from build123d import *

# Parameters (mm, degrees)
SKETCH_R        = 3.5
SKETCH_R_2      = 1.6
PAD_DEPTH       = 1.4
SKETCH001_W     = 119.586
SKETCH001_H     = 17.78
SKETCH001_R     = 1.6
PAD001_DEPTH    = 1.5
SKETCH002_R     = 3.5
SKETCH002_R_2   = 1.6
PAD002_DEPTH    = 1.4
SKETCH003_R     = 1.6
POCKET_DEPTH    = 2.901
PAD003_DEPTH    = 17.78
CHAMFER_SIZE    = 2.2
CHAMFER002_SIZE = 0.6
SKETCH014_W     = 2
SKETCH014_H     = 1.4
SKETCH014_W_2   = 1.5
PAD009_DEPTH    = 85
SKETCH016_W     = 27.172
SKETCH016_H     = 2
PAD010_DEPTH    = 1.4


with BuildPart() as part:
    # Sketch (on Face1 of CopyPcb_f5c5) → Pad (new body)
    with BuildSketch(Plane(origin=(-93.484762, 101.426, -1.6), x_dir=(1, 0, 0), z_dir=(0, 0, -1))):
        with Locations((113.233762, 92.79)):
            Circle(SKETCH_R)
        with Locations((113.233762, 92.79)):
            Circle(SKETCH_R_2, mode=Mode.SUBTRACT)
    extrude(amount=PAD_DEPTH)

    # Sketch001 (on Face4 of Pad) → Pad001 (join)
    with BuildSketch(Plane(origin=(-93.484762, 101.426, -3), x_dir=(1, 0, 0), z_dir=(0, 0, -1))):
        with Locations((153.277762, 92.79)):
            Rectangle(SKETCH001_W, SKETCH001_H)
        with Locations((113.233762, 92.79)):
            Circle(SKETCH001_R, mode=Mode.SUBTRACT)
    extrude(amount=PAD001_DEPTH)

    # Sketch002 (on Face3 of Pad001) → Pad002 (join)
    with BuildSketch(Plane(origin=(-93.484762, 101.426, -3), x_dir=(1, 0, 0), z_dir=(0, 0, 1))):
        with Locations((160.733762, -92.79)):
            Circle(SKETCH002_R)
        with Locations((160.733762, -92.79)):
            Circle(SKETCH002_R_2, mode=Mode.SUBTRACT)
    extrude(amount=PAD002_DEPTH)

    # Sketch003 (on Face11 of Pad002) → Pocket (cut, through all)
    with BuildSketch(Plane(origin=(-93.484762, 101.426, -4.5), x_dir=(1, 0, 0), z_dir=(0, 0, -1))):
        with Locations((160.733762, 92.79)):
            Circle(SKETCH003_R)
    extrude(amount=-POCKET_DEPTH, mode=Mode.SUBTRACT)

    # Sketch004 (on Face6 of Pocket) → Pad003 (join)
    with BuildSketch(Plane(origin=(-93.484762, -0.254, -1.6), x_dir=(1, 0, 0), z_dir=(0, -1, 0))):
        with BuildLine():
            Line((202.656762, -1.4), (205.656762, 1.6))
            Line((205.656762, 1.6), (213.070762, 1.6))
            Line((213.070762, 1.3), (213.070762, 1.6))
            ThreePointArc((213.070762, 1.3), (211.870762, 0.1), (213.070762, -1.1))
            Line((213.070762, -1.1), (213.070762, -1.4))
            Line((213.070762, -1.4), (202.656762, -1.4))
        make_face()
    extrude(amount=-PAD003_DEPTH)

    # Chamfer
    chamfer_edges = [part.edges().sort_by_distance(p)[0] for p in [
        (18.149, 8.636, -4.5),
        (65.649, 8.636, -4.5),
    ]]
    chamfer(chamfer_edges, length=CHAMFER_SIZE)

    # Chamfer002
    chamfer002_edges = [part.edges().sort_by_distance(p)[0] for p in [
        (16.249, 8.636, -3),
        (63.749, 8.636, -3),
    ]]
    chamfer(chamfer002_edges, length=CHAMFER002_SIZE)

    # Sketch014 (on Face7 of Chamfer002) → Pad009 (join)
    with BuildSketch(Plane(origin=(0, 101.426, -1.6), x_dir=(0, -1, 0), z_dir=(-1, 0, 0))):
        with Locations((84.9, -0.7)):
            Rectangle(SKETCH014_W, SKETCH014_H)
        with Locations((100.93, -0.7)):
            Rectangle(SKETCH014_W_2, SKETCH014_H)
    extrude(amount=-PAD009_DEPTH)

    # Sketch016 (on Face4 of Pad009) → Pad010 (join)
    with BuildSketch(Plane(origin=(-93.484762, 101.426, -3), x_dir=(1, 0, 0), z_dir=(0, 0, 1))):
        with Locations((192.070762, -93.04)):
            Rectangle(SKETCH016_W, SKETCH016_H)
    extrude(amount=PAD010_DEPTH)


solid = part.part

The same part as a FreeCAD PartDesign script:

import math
import FreeCAD as App
import Part
import Sketcher
from FreeCAD import Vector
Q = App.Units.Quantity


def edges_at(feature, points):
    """Names of the edges that pass closest to the given points."""
    edges = feature.Shape.Edges
    near = lambda p: min(range(len(edges)), key=lambda i: edges[i].distToShape(Part.Vertex(*p))[0])
    return sorted({f"Edge{near(p) + 1}" for p in points})

doc = App.newDocument("Part")
body = doc.addObject("PartDesign::Body", "Body")

# Sketch on XY plane
sketch1 = body.newObject("Sketcher::SketchObject", "Sketch")
sketch1.AttachmentSupport = (doc.getObject("XY_Plane"), [""])
sketch1.MapMode = "FlatFace"
sketch1.AttachmentOffset = App.Placement(Vector(0, 0, -1.6), App.Rotation())
sketch1.addGeometry([
    Part.Circle(Vector(19.7, 8.6, 0), Vector(0, 0, 1), 3.5),
    Part.Circle(Vector(19.7, 8.6, 0), Vector(0, 0, 1), 1.6),
], False)
sketch1.addConstraint([
    Sketcher.Constraint("Coincident", 1, 3, 0, 3),
    Sketcher.Constraint("Diameter", 0, 7.0),
    Sketcher.Constraint("Diameter", 1, 3.2),
    Sketcher.Constraint("DistanceX", -1, 1, 0, 3, 19.749),
    Sketcher.Constraint("DistanceY", -1, 1, 0, 3, 8.636),
])
pad1 = body.newObject("PartDesign::Pad", "Pad")
pad1.Profile = sketch1
pad1.Length = 1.4
pad1.Reversed = True

# Sketch on XY plane
sketch2 = body.newObject("Sketcher::SketchObject", "Sketch001")
sketch2.AttachmentSupport = (doc.getObject("XY_Plane"), [""])
sketch2.MapMode = "FlatFace"
sketch2.AttachmentOffset = App.Placement(Vector(0, 0, -3), App.Rotation())
sketch2.addGeometry([
    Part.LineSegment(Vector(0, -0.3, 0), Vector(0, 17.5, 0)),  # 0
    Part.LineSegment(Vector(0, 17.5, 0), Vector(119.6, 17.5, 0)),  # 1
    Part.LineSegment(Vector(119.6, 17.5, 0), Vector(119.6, -0.3, 0)),  # 2
    Part.LineSegment(Vector(119.6, -0.3, 0), Vector(0, -0.3, 0)),  # 3
    Part.Circle(Vector(19.7, 8.6, 0), Vector(0, 0, 1), 1.6),  # 4
], False)
sketch2.addConstraint([
    Sketcher.Constraint("Coincident", 0, 2, 1, 1),
    Sketcher.Constraint("Coincident", 1, 2, 2, 1),
    Sketcher.Constraint("Coincident", 2, 2, 3, 1),
    Sketcher.Constraint("Coincident", 3, 2, 0, 1),
    Sketcher.Constraint("Vertical", 0),
    Sketcher.Constraint("Horizontal", 1),
    Sketcher.Constraint("Vertical", 2),
    Sketcher.Constraint("Horizontal", 3),
    Sketcher.Constraint("PointOnObject", 0, 2, -2),
    Sketcher.Constraint("Diameter", 4, 3.2),
    Sketcher.Constraint("DistanceY", 0, 1, 0, 2, 17.78),
    Sketcher.Constraint("DistanceX", 1, 1, 1, 2, 119.586),
    Sketcher.Constraint("DistanceY", 4, 3, 0, 2, 8.89),
    Sketcher.Constraint("DistanceX", -1, 1, 4, 3, 19.749),
    Sketcher.Constraint("DistanceY", -1, 1, 4, 3, 8.636),
])
pad2 = body.newObject("PartDesign::Pad", "Pad001")
pad2.Profile = sketch2
pad2.Length = 1.5
pad2.Reversed = True

# Sketch on XY plane
sketch3 = body.newObject("Sketcher::SketchObject", "Sketch002")
sketch3.AttachmentSupport = (doc.getObject("XY_Plane"), [""])
sketch3.MapMode = "FlatFace"
sketch3.AttachmentOffset = App.Placement(Vector(0, 0, -3), App.Rotation())
sketch3.addGeometry([
    Part.Circle(Vector(67.2, 8.6, 0), Vector(0, 0, 1), 3.5),
    Part.Circle(Vector(67.2, 8.6, 0), Vector(0, 0, 1), 1.6),
], False)
sketch3.addConstraint([
    Sketcher.Constraint("Coincident", 1, 3, 0, 3),
    Sketcher.Constraint("Diameter", 0, 7.0),
    Sketcher.Constraint("Diameter", 1, 3.2),
    Sketcher.Constraint("DistanceX", -1, 1, 0, 3, 67.249),
    Sketcher.Constraint("DistanceY", -1, 1, 0, 3, 8.636),
])
pad3 = body.newObject("PartDesign::Pad", "Pad002")
pad3.Profile = sketch3
pad3.Length = 1.4

# Sketch on XY plane
sketch4 = body.newObject("Sketcher::SketchObject", "Sketch003")
sketch4.AttachmentSupport = (doc.getObject("XY_Plane"), [""])
sketch4.MapMode = "FlatFace"
sketch4.AttachmentOffset = App.Placement(Vector(0, 0, -4.5), App.Rotation())
sketch4.addGeometry(Part.Circle(Vector(67.2, 8.6, 0), Vector(0, 0, 1), 1.6), False)
sketch4.addConstraint([
    Sketcher.Constraint("Diameter", 0, 3.2),
    Sketcher.Constraint("DistanceX", -1, 1, 0, 3, 67.249),
    Sketcher.Constraint("DistanceY", -1, 1, 0, 3, 8.636),
])
pocket1 = body.newObject("PartDesign::Pocket", "Pocket")
pocket1.Profile = sketch4
pocket1.Type = "ThroughAll"
pocket1.Reversed = True

# Sketch on XZ plane
sketch5 = body.newObject("Sketcher::SketchObject", "Sketch004")
sketch5.AttachmentSupport = (doc.getObject("XZ_Plane"), [""])
sketch5.MapMode = "FlatFace"
sketch5.AttachmentOffset = App.Placement(Vector(0, 0, 0.254), App.Rotation())
sketch5.addGeometry([
    Part.LineSegment(Vector(112.17, 0, 0), Vector(109.17, -3, 0)),  # 0
    Part.LineSegment(Vector(109.17, -3, 0), Vector(119.59, -3, 0)),  # 1
    Part.LineSegment(Vector(119.59, -3, 0), Vector(119.59, -2.7, 0)),  # 2
    Part.ArcOfCircle(Part.Circle(Vector(119.59, -1.5, 0), Vector(0, 0, 1), 1.2), math.radians(90), math.radians(270)),  # 3
    Part.LineSegment(Vector(119.59, -0.3, 0), Vector(119.59, 0, 0)),  # 4
    Part.LineSegment(Vector(119.59, 0, 0), Vector(112.17, 0, 0)),  # 5
], False)
sketch5.addConstraint([
    Sketcher.Constraint("Coincident", 0, 2, 1, 1),
    Sketcher.Constraint("Coincident", 1, 2, 2, 1),
    Sketcher.Constraint("Coincident", 2, 2, 3, 2),
    Sketcher.Constraint("Coincident", 3, 1, 4, 1),
    Sketcher.Constraint("Coincident", 4, 2, 5, 1),
    Sketcher.Constraint("Coincident", 5, 2, 0, 1),
    Sketcher.Constraint("Horizontal", 1),
    Sketcher.Constraint("Vertical", 2),
    Sketcher.Constraint("Vertical", 4),
    Sketcher.Constraint("Horizontal", 5),
    Sketcher.Constraint("PointOnObject", 4, 2, -1),
    Sketcher.Constraint("Vertical", 3, 3, 1, 2),
    Sketcher.Constraint("Vertical", 2, 2, 3, 1),
    Sketcher.Constraint("Equal", 2, 4),
    Sketcher.Constraint("Radius", 3, 1.2),
    Sketcher.Constraint("Angle", 0, Q("-135 deg")),
    Sketcher.Constraint("DistanceY", 2, 1, 2, 2, 0.3),
    Sketcher.Constraint("DistanceX", 1, 1, 1, 2, 10.414),
    Sketcher.Constraint("DistanceX", -1, 1, 3, 3, 119.586),
])
pad4 = body.newObject("PartDesign::Pad", "Pad003")
pad4.Profile = sketch5
pad4.Length = 17.78
pad4.Reversed = True
doc.recompute()

chamfer = body.newObject("PartDesign::Chamfer", "Chamfer")
chamfer.Base = (pad4, edges_at(pad4, [(18.149, 8.636, -4.5), (65.649, 8.636, -4.5)]))
chamfer.Size = 2.2
doc.recompute()

chamfer2 = body.newObject("PartDesign::Chamfer", "Chamfer001")
chamfer2.Base = (chamfer, edges_at(chamfer, [(16.249, 8.636, -3), (63.749, 8.636, -3)]))
chamfer2.Size = 0.6

# Sketch on YZ plane
sketch6 = body.newObject("Sketcher::SketchObject", "Sketch005")
sketch6.AttachmentSupport = (doc.getObject("YZ_Plane"), [""])
sketch6.MapMode = "FlatFace"
sketch6.addGeometry([
    Part.LineSegment(Vector(17.5, -1.6, 0), Vector(17.5, -3, 0)),  # 0
    Part.LineSegment(Vector(17.5, -3, 0), Vector(15.5, -3, 0)),  # 1
    Part.LineSegment(Vector(15.5, -3, 0), Vector(15.5, -1.6, 0)),  # 2
    Part.LineSegment(Vector(15.5, -1.6, 0), Vector(17.5, -1.6, 0)),  # 3
    Part.LineSegment(Vector(1.2, -1.6, 0), Vector(1.2, -3, 0)),  # 4
    Part.LineSegment(Vector(1.2, -3, 0), Vector(-0.3, -3, 0)),  # 5
    Part.LineSegment(Vector(-0.3, -3, 0), Vector(-0.3, -1.6, 0)),  # 6
    Part.LineSegment(Vector(-0.3, -1.6, 0), Vector(1.2, -1.6, 0)),  # 7
], False)
sketch6.addConstraint([
    Sketcher.Constraint("Coincident", 0, 2, 1, 1),
    Sketcher.Constraint("Coincident", 1, 2, 2, 1),
    Sketcher.Constraint("Coincident", 2, 2, 3, 1),
    Sketcher.Constraint("Coincident", 3, 2, 0, 1),
    Sketcher.Constraint("Coincident", 4, 2, 5, 1),
    Sketcher.Constraint("Coincident", 5, 2, 6, 1),
    Sketcher.Constraint("Coincident", 6, 2, 7, 1),
    Sketcher.Constraint("Coincident", 7, 2, 4, 1),
    Sketcher.Constraint("Vertical", 0),
    Sketcher.Constraint("Horizontal", 1),
    Sketcher.Constraint("Vertical", 2),
    Sketcher.Constraint("Horizontal", 3),
    Sketcher.Constraint("Vertical", 4),
    Sketcher.Constraint("Horizontal", 5),
    Sketcher.Constraint("Vertical", 6),
    Sketcher.Constraint("Horizontal", 7),
    Sketcher.Constraint("Horizontal", 1, 2, 4, 2),
    Sketcher.Constraint("Horizontal", 3, 2, 6, 2),
    Sketcher.Constraint("DistanceX", 1, 2, 1, 1, 2.0),
    Sketcher.Constraint("DistanceX", 5, 2, 5, 1, 1.5),
    Sketcher.Constraint("DistanceY", 0, 2, 0, 1, 1.4),
    Sketcher.Constraint("DistanceY", 0, 2, -1, 1, 3.0),
    Sketcher.Constraint("DistanceX", 4, 2, 1, 2, 14.28),
    Sketcher.Constraint("DistanceX", -1, 1, 0, 2, 17.526),
])
pad5 = body.newObject("PartDesign::Pad", "Pad004")
pad5.Profile = sketch6
pad5.Length = 85

# Sketch on XY plane
sketch7 = body.newObject("Sketcher::SketchObject", "Sketch006")
sketch7.AttachmentSupport = (doc.getObject("XY_Plane"), [""])
sketch7.MapMode = "FlatFace"
sketch7.AttachmentOffset = App.Placement(Vector(0, 0, -3), App.Rotation())
sketch7.addGeometry([
    Part.LineSegment(Vector(85, 9.4, 0), Vector(85, 7.4, 0)),
    Part.LineSegment(Vector(85, 7.4, 0), Vector(112.2, 7.4, 0)),
    Part.LineSegment(Vector(112.2, 7.4, 0), Vector(112.2, 9.4, 0)),
    Part.LineSegment(Vector(112.2, 9.4, 0), Vector(85, 9.4, 0)),
], False)
sketch7.addConstraint([
    Sketcher.Constraint("Coincident", 0, 2, 1, 1),
    Sketcher.Constraint("Coincident", 1, 2, 2, 1),
    Sketcher.Constraint("Coincident", 2, 2, 3, 1),
    Sketcher.Constraint("Coincident", 3, 2, 0, 1),
    Sketcher.Constraint("Vertical", 0),
    Sketcher.Constraint("Horizontal", 1),
    Sketcher.Constraint("Vertical", 2),
    Sketcher.Constraint("Horizontal", 3),
    Sketcher.Constraint("DistanceY", 0, 2, 0, 1, 2.0),
    Sketcher.Constraint("DistanceX", -1, 1, 0, 2, 85.0),
    Sketcher.Constraint("DistanceX", 1, 1, 1, 2, 27.172),
    Sketcher.Constraint("DistanceY", -1, 1, 0, 2, 7.386),
])
pad6 = body.newObject("PartDesign::Pad", "Pad005")
pad6.Profile = sketch7
pad6.Length = 1.4

doc.recompute()
